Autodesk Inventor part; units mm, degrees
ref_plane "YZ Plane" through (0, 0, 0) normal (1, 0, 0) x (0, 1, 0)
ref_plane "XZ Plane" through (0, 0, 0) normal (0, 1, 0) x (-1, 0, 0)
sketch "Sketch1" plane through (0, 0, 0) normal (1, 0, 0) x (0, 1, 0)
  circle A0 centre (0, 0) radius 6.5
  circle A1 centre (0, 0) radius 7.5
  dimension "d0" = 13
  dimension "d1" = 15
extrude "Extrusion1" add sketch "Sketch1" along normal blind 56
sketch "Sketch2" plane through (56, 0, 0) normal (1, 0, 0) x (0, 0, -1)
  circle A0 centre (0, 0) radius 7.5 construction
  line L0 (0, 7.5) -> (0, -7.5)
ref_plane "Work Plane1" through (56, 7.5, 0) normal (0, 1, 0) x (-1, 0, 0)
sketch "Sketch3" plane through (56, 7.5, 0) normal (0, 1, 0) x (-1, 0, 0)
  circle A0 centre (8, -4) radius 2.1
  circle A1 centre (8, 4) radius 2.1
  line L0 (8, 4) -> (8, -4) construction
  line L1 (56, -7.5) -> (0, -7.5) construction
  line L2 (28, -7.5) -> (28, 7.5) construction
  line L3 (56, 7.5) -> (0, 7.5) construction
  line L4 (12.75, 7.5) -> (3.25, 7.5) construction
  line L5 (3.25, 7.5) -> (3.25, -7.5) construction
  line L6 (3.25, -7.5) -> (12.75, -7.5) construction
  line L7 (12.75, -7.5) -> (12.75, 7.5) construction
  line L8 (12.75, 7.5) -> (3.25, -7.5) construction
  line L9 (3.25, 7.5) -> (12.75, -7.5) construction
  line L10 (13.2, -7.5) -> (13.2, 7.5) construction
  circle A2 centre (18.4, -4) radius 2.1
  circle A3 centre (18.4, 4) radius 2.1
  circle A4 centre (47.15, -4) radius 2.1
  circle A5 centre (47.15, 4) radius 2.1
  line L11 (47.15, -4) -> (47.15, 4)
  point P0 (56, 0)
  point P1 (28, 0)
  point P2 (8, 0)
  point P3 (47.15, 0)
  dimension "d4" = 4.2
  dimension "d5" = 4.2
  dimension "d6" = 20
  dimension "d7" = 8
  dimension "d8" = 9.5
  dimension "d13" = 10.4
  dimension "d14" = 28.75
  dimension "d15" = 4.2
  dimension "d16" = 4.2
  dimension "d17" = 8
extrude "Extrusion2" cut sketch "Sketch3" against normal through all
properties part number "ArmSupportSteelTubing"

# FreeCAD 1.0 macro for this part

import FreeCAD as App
import Part
import Sketcher
from FreeCAD import Vector

doc = App.newDocument("Part")
body = doc.addObject("PartDesign::Body", "Body")

# Sketch on YZ plane
sketch1 = body.newObject("Sketcher::SketchObject", "Sketch")
sketch1.AttachmentSupport = (doc.getObject("YZ_Plane"), [""])
sketch1.MapMode = "FlatFace"
sketch1.addGeometry([
    Part.Circle(Vector(0, 0, 0), Vector(0, 0, 1), 7.5),
    Part.Circle(Vector(0, 0, 0), Vector(0, 0, 1), 6.5),
], False)
sketch1.addConstraint([
    Sketcher.Constraint("Coincident", 0, 3, -1, 1),
    Sketcher.Constraint("Coincident", 1, 3, -1, 1),
    Sketcher.Constraint("Diameter", 0, 15.0),
    Sketcher.Constraint("Diameter", 1, 13.0),
])
pad1 = body.newObject("PartDesign::Pad", "Pad")
pad1.Profile = sketch1
pad1.Length = 56

# Sketch on XZ plane
sketch2 = body.newObject("Sketcher::SketchObject", "Sketch001")
sketch2.AttachmentSupport = (doc.getObject("XZ_Plane"), [""])
sketch2.MapMode = "FlatFace"
sketch2.AttachmentOffset = App.Placement(Vector(0, 0, -7.5), App.Rotation())
sketch2.addGeometry([
    Part.Circle(Vector(48, -4, 0), Vector(0, 0, 1), 2.1),  # 0
    Part.Circle(Vector(48, 4, 0), Vector(0, 0, 1), 2.1),  # 1
    Part.Circle(Vector(37.6, -4, 0), Vector(0, 0, 1), 2.1),  # 2
    Part.Circle(Vector(37.6, 4, 0), Vector(0, 0, 1), 2.1),  # 3
    Part.Circle(Vector(8.85, -4, 0), Vector(0, 0, 1), 2.1),  # 4
    Part.Circle(Vector(8.85, 4, 0), Vector(0, 0, 1), 2.1),  # 5
], False)
sketch2.addConstraint([
    Sketcher.Constraint("Equal", 0, 1),
    Sketcher.Constraint("Equal", 1, 2),
    Sketcher.Constraint("Equal", 2, 3),
    Sketcher.Constraint("Equal", 3, 4),
    Sketcher.Constraint("Equal", 4, 5),
    Sketcher.Constraint("Symmetric", 0, 3, 1, 3, -1),
    Sketcher.Constraint("Symmetric", 2, 3, 3, 3, -1),
    Sketcher.Constraint("Symmetric", 4, 3, 5, 3, -1),
    Sketcher.Constraint("Horizontal", 0, 3, 2, 3),
    Sketcher.Constraint("Horizontal", 2, 3, 4, 3),
    Sketcher.Constraint("Diameter", 0, 4.2),
    Sketcher.Constraint("DistanceY", 0, 3, 1, 3, 8.0),
    Sketcher.Constraint("DistanceX", 2, 3, 0, 3, 10.4),
    Sketcher.Constraint("DistanceX", 4, 3, 2, 3, 28.75),
    Sketcher.Constraint("DistanceX", -1, 1, 0, 3, 48.0),
])
pocket1 = body.newObject("PartDesign::Pocket", "Pocket")
pocket1.Profile = sketch2
pocket1.Type = "ThroughAll"
pocket1.Reversed = True

doc.recompute()
